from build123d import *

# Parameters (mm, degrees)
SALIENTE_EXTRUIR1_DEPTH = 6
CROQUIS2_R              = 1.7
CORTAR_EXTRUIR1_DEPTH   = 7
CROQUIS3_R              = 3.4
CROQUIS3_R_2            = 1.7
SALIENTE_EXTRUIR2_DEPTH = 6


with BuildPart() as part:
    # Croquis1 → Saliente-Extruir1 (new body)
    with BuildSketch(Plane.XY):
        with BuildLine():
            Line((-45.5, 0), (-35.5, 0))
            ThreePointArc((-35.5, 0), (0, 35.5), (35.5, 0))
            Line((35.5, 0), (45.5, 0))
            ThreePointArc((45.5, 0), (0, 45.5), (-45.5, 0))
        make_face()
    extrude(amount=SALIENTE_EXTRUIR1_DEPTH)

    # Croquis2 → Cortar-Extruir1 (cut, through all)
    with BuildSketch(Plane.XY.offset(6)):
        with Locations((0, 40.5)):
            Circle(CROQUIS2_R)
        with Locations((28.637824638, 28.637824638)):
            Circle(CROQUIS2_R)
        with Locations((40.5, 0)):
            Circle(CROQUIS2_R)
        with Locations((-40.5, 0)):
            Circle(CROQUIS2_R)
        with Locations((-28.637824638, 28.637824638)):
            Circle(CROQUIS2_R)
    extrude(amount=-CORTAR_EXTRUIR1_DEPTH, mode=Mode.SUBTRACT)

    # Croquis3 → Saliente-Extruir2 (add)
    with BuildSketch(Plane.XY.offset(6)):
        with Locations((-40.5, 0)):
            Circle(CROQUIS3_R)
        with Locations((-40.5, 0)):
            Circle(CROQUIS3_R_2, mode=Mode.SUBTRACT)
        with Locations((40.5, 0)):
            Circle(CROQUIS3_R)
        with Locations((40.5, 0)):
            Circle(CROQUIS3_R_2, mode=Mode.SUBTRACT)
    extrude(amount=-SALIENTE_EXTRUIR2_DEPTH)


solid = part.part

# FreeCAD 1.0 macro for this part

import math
import FreeCAD as App
import Part
import Sketcher
from FreeCAD import Vector
Q = App.Units.Quantity

doc = App.newDocument("Part")
params = doc.addObject("Spreadsheet::Sheet", "Params")
for row, (alias, value) in enumerate([
    ("sketch1_radius", "35.5 mm"),
    ("sketch1_radius2", "45.5 mm"),
    ("pad1_length", "6 mm"),
    ("sketch2_diameter", "3.4 mm"),
    ("sketch3_diameter", "6.8 mm"),
    ("sketch3_diameter2", "3.4 mm"),
    ("pad2_length", "6 mm"),
], start=1):
    params.set(f"A{row}", alias)
    params.set(f"B{row}", "=" + value)
    params.setAlias(f"B{row}", alias)

body = doc.addObject("PartDesign::Body", "Body")

# Sketch on XY plane
sketch1 = doc.addObject("Sketcher::SketchObject", "Sketch")
body.addObject(sketch1)
sketch1.AttachmentSupport = (doc.XY_Plane, [""])
sketch1.MapMode = "FlatFace"
sketch1.addGeometry(Part.LineSegment(Vector(-45.5, 0, 0), Vector(-35.5, 0, 0)), False)
sketch1.addGeometry(Part.ArcOfCircle(Part.Circle(Vector(0, 0, 0), Vector(0, 0, 1), 35.5), math.radians(0), math.radians(180)), False)
sketch1.addGeometry(Part.LineSegment(Vector(35.5, 0, 0), Vector(45.5, 0, 0)), False)
sketch1.addGeometry(Part.ArcOfCircle(Part.Circle(Vector(0, 0, 0), Vector(0, 0, 1), 45.5), math.radians(0), math.radians(180)), False)
sketch1.addConstraint(Sketcher.Constraint("Coincident", 0, 2, 1, 2))
sketch1.addConstraint(Sketcher.Constraint("Coincident", 1, 1, 2, 1))
sketch1.addConstraint(Sketcher.Constraint("Coincident", 2, 2, 3, 1))
sketch1.addConstraint(Sketcher.Constraint("Coincident", 3, 2, 0, 1))
sketch1.addConstraint(Sketcher.Constraint("Horizontal", 0))
sketch1.addConstraint(Sketcher.Constraint("Horizontal", 2))
sketch1.addConstraint(Sketcher.Constraint("Coincident", 1, 3, -1, 1))
sketch1.addConstraint(Sketcher.Constraint("Coincident", 3, 3, -1, 1))
sketch1.addConstraint(Sketcher.Constraint("PointOnObject", 0, 2, -1))
sketch1.addConstraint(Sketcher.Constraint("PointOnObject", 1, 1, -1))
sketch1.addConstraint(Sketcher.Constraint("Radius", 1, Q("35.5 mm")))
sketch1.addConstraint(Sketcher.Constraint("Radius", 3, Q("45.5 mm")))
sketch1.setExpression("Constraints[10]", "Params.sketch1_radius")
sketch1.setExpression("Constraints[11]", "Params.sketch1_radius2")
pad1 = doc.addObject("PartDesign::Pad", "Pad")
body.addObject(pad1)
pad1.Profile = sketch1
pad1.setExpression("Length", "Params.pad1_length")

# Sketch on XY plane
sketch2 = doc.addObject("Sketcher::SketchObject", "Sketch001")
body.addObject(sketch2)
sketch2.AttachmentSupport = (doc.XY_Plane, [""])
sketch2.MapMode = "FlatFace"
sketch2.AttachmentOffset = App.Placement(Vector(0, 0, 6), App.Rotation())
sketch2.addGeometry(Part.Circle(Vector(0, 40.5, 0), Vector(0, 0, 1), 1.7), False)
sketch2.addGeometry(Part.Circle(Vector(28.637825, 28.637825, 0), Vector(0, 0, 1), 1.7), False)
sketch2.addGeometry(Part.Circle(Vector(40.5, 0, 0), Vector(0, 0, 1), 1.7), False)
sketch2.addGeometry(Part.Circle(Vector(-40.5, 0, 0), Vector(0, 0, 1), 1.7), False)
sketch2.addGeometry(Part.Circle(Vector(-28.637825, 28.637825, 0), Vector(0, 0, 1), 1.7), False)
sketch2.addConstraint(Sketcher.Constraint("Equal", 0, 1))
sketch2.addConstraint(Sketcher.Constraint("Equal", 1, 2))
sketch2.addConstraint(Sketcher.Constraint("Equal", 2, 3))
sketch2.addConstraint(Sketcher.Constraint("Equal", 3, 4))
sketch2.addConstraint(Sketcher.Constraint("Symmetric", 2, 3, 3, 3, -1, 1))
sketch2.addConstraint(Sketcher.Constraint("Symmetric", 1, 3, 4, 3, -2))
sketch2.addConstraint(Sketcher.Constraint("PointOnObject", 0, 3, -2))
sketch2.addConstraint(Sketcher.Constraint("PointOnObject", 2, 3, -1))
sketch2.addConstraint(Sketcher.Constraint("Diameter", 0, Q("3.4 mm")))
sketch2.addConstraint(Sketcher.Constraint("DistanceX", 3, 3, 2, 3, Q("81 mm")))
sketch2.addConstraint(Sketcher.Constraint("DistanceY", -1, 1, 0, 3, Q("40.5 mm")))
sketch2.addConstraint(Sketcher.Constraint("DistanceX", 4, 3, 1, 3, Q("57.275649 mm")))
sketch2.addConstraint(Sketcher.Constraint("DistanceY", -1, 1, 1, 3, Q("28.637825 mm")))
sketch2.setExpression("Constraints[8]", "Params.sketch2_diameter")
pocket1 = doc.addObject("PartDesign::Pocket", "Pocket")
body.addObject(pocket1)
pocket1.Profile = sketch2
pocket1.Type = "ThroughAll"

# Sketch on XY plane
sketch3 = doc.addObject("Sketcher::SketchObject", "Sketch002")
body.addObject(sketch3)
sketch3.AttachmentSupport = (doc.XY_Plane, [""])
sketch3.MapMode = "FlatFace"
sketch3.AttachmentOffset = App.Placement(Vector(0, 0, 6), App.Rotation())
sketch3.addGeometry(Part.Circle(Vector(-40.5, 0, 0), Vector(0, 0, 1), 3.4), False)
sketch3.addGeometry(Part.Circle(Vector(-40.5, 0, 0), Vector(0, 0, 1), 1.7), False)
sketch3.addGeometry(Part.Circle(Vector(40.5, 0, 0), Vector(0, 0, 1), 3.4), False)
sketch3.addGeometry(Part.Circle(Vector(40.5, 0, 0), Vector(0, 0, 1), 1.7), False)
sketch3.addConstraint(Sketcher.Constraint("Coincident", 1, 3, 0, 3))
sketch3.addConstraint(Sketcher.Constraint("Coincident", 3, 3, 2, 3))
sketch3.addConstraint(Sketcher.Constraint("Equal", 0, 2))
sketch3.addConstraint(Sketcher.Constraint("Equal", 1, 3))
sketch3.addConstraint(Sketcher.Constraint("Symmetric", 0, 3, 2, 3, -1, 1))
sketch3.addConstraint(Sketcher.Constraint("PointOnObject", 0, 3, -1))
sketch3.addConstraint(Sketcher.Constraint("Diameter", 0, Q("6.8 mm")))
sketch3.addConstraint(Sketcher.Constraint("Diameter", 1, Q("3.4 mm")))
sketch3.addConstraint(Sketcher.Constraint("DistanceX", 0, 3, 2, 3, Q("81 mm")))
sketch3.setExpression("Constraints[6]", "Params.sketch3_diameter")
sketch3.setExpression("Constraints[7]", "Params.sketch3_diameter2")
pad2 = doc.addObject("PartDesign::Pad", "Pad001")
body.addObject(pad2)
pad2.Profile = sketch3
pad2.setExpression("Length", "Params.pad2_length")
pad2.Reversed = True

doc.recompute()
